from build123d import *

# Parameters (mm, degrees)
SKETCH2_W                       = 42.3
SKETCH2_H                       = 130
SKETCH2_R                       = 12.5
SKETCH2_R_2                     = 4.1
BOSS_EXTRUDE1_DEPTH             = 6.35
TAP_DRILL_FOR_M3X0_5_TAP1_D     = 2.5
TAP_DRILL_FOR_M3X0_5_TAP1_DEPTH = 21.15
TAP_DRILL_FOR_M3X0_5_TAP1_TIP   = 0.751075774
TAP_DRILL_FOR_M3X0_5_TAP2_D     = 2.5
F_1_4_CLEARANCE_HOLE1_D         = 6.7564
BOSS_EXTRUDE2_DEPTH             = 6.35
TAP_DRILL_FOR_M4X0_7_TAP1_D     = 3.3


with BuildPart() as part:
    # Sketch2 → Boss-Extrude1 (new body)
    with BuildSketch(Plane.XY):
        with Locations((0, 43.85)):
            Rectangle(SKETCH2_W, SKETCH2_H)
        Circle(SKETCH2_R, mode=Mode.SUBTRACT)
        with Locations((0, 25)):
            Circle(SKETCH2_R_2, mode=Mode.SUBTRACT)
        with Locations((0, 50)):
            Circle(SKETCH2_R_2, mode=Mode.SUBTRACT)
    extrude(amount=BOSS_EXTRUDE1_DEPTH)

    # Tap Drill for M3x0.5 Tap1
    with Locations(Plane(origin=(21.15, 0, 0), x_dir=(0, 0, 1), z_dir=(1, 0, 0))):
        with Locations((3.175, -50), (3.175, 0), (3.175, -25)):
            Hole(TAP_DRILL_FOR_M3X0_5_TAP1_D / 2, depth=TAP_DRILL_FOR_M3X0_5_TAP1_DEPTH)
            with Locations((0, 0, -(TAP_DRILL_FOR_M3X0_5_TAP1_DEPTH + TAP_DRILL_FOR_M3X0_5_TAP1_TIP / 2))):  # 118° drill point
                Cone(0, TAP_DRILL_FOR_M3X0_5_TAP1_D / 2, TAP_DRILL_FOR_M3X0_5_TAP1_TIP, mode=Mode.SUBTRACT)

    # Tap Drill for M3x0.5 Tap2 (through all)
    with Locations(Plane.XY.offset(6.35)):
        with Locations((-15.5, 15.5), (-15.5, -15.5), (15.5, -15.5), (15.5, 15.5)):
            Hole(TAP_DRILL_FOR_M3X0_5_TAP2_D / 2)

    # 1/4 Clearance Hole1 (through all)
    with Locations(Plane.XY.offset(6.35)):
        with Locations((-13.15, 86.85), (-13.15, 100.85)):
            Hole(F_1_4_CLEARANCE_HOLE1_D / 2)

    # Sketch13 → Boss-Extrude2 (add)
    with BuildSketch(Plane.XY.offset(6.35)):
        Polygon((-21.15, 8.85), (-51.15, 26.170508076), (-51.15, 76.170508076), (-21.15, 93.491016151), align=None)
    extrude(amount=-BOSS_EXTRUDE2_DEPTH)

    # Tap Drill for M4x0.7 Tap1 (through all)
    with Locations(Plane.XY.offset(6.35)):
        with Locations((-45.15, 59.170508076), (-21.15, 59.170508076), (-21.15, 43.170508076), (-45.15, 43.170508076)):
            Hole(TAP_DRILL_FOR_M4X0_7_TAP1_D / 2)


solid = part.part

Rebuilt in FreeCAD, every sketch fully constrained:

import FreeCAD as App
import Part
import Sketcher

V = App.Vector
Q = App.Units.Quantity


def add_polygon(sketch, points):
    """Adds a closed chain of lines whose ends are joined by coincident constraints."""
    first, n = sketch.GeometryCount, len(points)
    for a, b in zip(points, points[1:] + points[:1]):
        sketch.addGeometry(Part.LineSegment(App.Vector(*a, 0), App.Vector(*b, 0)), False)
    for i in range(n):
        sketch.addConstraint(Sketcher.Constraint("Coincident", first + i, 2, first + (i + 1) % n, 1))

doc = App.newDocument("Part")
body = doc.addObject("PartDesign::Body", "Body")

sketch1 = body.newObject("Sketcher::SketchObject", "Sketch")
sketch1.AttachmentSupport = (doc.getObject("XY_Plane"), [""])
sketch1.MapMode = "FlatFace"
add_polygon(sketch1, [(-21.1, 108.8), (-21.1, -21.1), (21.1, -21.1), (21.1, 108.8)])
sketch1.addGeometry(Part.Circle(V(0, 0, 0), V(0, 0, 1), 12.5), False)
sketch1.addGeometry(Part.Circle(V(0, 25, 0), V(0, 0, 1), 4.1), False)
sketch1.addGeometry(Part.Circle(V(0, 50, 0), V(0, 0, 1), 4.1), False)
sketch1.addConstraint([
    Sketcher.Constraint("Vertical", 0),
    Sketcher.Constraint("Horizontal", 1),
    Sketcher.Constraint("Vertical", 2),
    Sketcher.Constraint("Horizontal", 3),
    Sketcher.Constraint("Coincident", 4, 3, -1, 1),
    Sketcher.Constraint("Equal", 5, 6),
    Sketcher.Constraint("PointOnObject", 5, 3, -2),
    Sketcher.Constraint("PointOnObject", 6, 3, -2),
    Sketcher.Constraint("Diameter", 4, 25.0),
    Sketcher.Constraint("Diameter", 5, 8.2),
    Sketcher.Constraint("DistanceY", 0, 2, 0, 1, 130.0),
    Sketcher.Constraint("DistanceX", 1, 1, 1, 2, 42.3),
    Sketcher.Constraint("DistanceY", -1, 1, 5, 3, 25.0),
    Sketcher.Constraint("DistanceY", -1, 1, 6, 3, 50.0),
    Sketcher.Constraint("DistanceX", 0, 2, -1, 1, 21.15),
    Sketcher.Constraint("DistanceY", 0, 2, -1, 1, 21.15),
])
pad1 = body.newObject("PartDesign::Pad", "Pad")
pad1.Profile = sketch1
pad1.Length = 6.35

sketch2 = body.newObject("Sketcher::SketchObject", "Sketch001")
sketch2.AttachmentSupport = (doc.getObject("YZ_Plane"), [""])
sketch2.MapMode = "FlatFace"
sketch2.AttachmentOffset = App.Placement(V(0, 0, 21.15), App.Rotation())
sketch2.addGeometry([
    Part.Circle(V(50, 3.2, 0), V(0, 0, 1), 1.2),
    Part.Circle(V(0, 3.2, 0), V(0, 0, 1), 1.2),
    Part.Circle(V(25, 3.2, 0), V(0, 0, 1), 1.2),
], False)
sketch2.addConstraint([
    Sketcher.Constraint("Equal", 0, 1),
    Sketcher.Constraint("Equal", 1, 2),
    Sketcher.Constraint("PointOnObject", 1, 3, -2),
    Sketcher.Constraint("Horizontal", 0, 3, 1, 3),
    Sketcher.Constraint("Horizontal", 1, 3, 2, 3),
    Sketcher.Constraint("Diameter", 0, 2.5),
    Sketcher.Constraint("DistanceX", -1, 1, 0, 3, 50.0),
    Sketcher.Constraint("DistanceX", -1, 1, 2, 3, 25.0),
    Sketcher.Constraint("DistanceY", -1, 1, 0, 3, 3.175),
])
doc.recompute()
hole = body.newObject("PartDesign::Hole", "Hole")
hole.Profile = sketch2
hole.ThreadType = "None"
hole.Diameter = 2.5
hole.DepthType = "Dimension"
hole.Depth = 21.15
hole.DrillPoint = "Angled"
hole.DrillPointAngle = 118

sketch3 = body.newObject("Sketcher::SketchObject", "Sketch002")
sketch3.AttachmentSupport = (doc.getObject("XY_Plane"), [""])
sketch3.MapMode = "FlatFace"
sketch3.AttachmentOffset = App.Placement(V(0, 0, 6.35), App.Rotation())
sketch3.addGeometry([
    Part.Circle(V(-15.5, 15.5, 0), V(0, 0, 1), 1.2),
    Part.Circle(V(-15.5, -15.5, 0), V(0, 0, 1), 1.2),
    Part.Circle(V(15.5, -15.5, 0), V(0, 0, 1), 1.2),
    Part.Circle(V(15.5, 15.5, 0), V(0, 0, 1), 1.2),
], False)
sketch3.addConstraint([
    Sketcher.Constraint("Equal", 0, 1),
    Sketcher.Constraint("Equal", 1, 2),
    Sketcher.Constraint("Equal", 2, 3),
    Sketcher.Constraint("Symmetric", 0, 3, 2, 3, -1, 1),
    Sketcher.Constraint("Symmetric", 1, 3, 3, 3, -1, 1),
    Sketcher.Constraint("Symmetric", 1, 3, 2, 3, -2),
    Sketcher.Constraint("Diameter", 0, 2.5),
    Sketcher.Constraint("DistanceY", 1, 3, 0, 3, 31.0),
    Sketcher.Constraint("DistanceX", 1, 3, 2, 3, 31.0),
])
doc.recompute()
hole2 = body.newObject("PartDesign::Hole", "Hole001")
hole2.Profile = sketch3
hole2.ThreadType = "None"
hole2.Diameter = 2.5
hole2.DepthType = "ThroughAll"

sketch4 = body.newObject("Sketcher::SketchObject", "Sketch003")
sketch4.AttachmentSupport = (doc.getObject("XY_Plane"), [""])
sketch4.MapMode = "FlatFace"
sketch4.AttachmentOffset = App.Placement(V(0, 0, 6.35), App.Rotation())
sketch4.addGeometry([
    Part.Circle(V(-13.2, 86.8, 0), V(0, 0, 1), 3.4),
    Part.Circle(V(-13.2, 100.8, 0), V(0, 0, 1), 3.4),
], False)
sketch4.addConstraint([
    Sketcher.Constraint("Equal", 0, 1),
    Sketcher.Constraint("Vertical", 0, 3, 1, 3),
    Sketcher.Constraint("DistanceY", 0, 3, 1, 3, 14.0),
    Sketcher.Constraint("Diameter", 0, 6.7564),
    Sketcher.Constraint("DistanceX", 0, 3, -1, 1, 13.15),
    Sketcher.Constraint("DistanceY", -1, 1, 0, 3, 86.85),
])
doc.recompute()
hole3 = body.newObject("PartDesign::Hole", "Hole002")
hole3.Profile = sketch4
hole3.ThreadType = "None"
hole3.Diameter = 6.7564
hole3.DepthType = "ThroughAll"

sketch5 = body.newObject("Sketcher::SketchObject", "Sketch004")
sketch5.AttachmentSupport = (doc.getObject("XY_Plane"), [""])
sketch5.MapMode = "FlatFace"
sketch5.AttachmentOffset = App.Placement(V(0, 0, 6.35), App.Rotation())
add_polygon(sketch5, [(-51, 26), (-21, 9), (-21, 93), (-51, 76)])
sketch5.addConstraint([
    Sketcher.Constraint("Vertical", 1),
    Sketcher.Constraint("Vertical", 3),
    Sketcher.Constraint("Equal", 0, 2),
    Sketcher.Constraint("DistanceY", 3, 2, 3, 1, 50.0),
    Sketcher.Constraint("Angle", 0, Q("-30 deg")),
    Sketcher.Constraint("DistanceX", 2, 2, 1, 2, 30.0),
    Sketcher.Constraint("DistanceX", 0, 2, -1, 1, 21.15),
    Sketcher.Constraint("DistanceY", -1, 1, 0, 2, 8.85),
])
pad2 = body.newObject("PartDesign::Pad", "Pad001")
pad2.Profile = sketch5
pad2.Length = 6.35
pad2.Reversed = True

sketch6 = body.newObject("Sketcher::SketchObject", "Sketch005")
sketch6.AttachmentSupport = (doc.getObject("XY_Plane"), [""])
sketch6.MapMode = "FlatFace"
sketch6.AttachmentOffset = App.Placement(V(0, 0, 6.35), App.Rotation())
sketch6.addGeometry([
    Part.Circle(V(-45.1, 59.2, 0), V(0, 0, 1), 1.6),
    Part.Circle(V(-21.1, 59.2, 0), V(0, 0, 1), 1.6),
    Part.Circle(V(-21.1, 43.2, 0), V(0, 0, 1), 1.6),
    Part.Circle(V(-45.1, 43.2, 0), V(0, 0, 1), 1.6),
], False)
sketch6.addConstraint([
    Sketcher.Constraint("Equal", 0, 1),
    Sketcher.Constraint("Equal", 1, 2),
    Sketcher.Constraint("Equal", 2, 3),
    Sketcher.Constraint("Horizontal", 0, 3, 1, 3),
    Sketcher.Constraint("Horizontal", 2, 3, 3, 3),
    Sketcher.Constraint("Vertical", 1, 3, 2, 3),
    Sketcher.Constraint("Vertical", 0, 3, 3, 3),
    Sketcher.Constraint("Diameter", 0, 3.3),
    Sketcher.Constraint("DistanceX", 0, 3, 1, 3, 24.0),
    Sketcher.Constraint("DistanceY", 2, 3, 1, 3, 16.0),
    Sketcher.Constraint("DistanceX", 0, 3, -1, 1, 45.15),
    Sketcher.Constraint("DistanceY", -1, 1, 0, 3, 59.170508),
])
doc.recompute()
hole4 = body.newObject("PartDesign::Hole", "Hole003")
hole4.Profile = sketch6
hole4.ThreadType = "None"
hole4.Diameter = 3.3
hole4.DepthType = "ThroughAll"

doc.recompute()
